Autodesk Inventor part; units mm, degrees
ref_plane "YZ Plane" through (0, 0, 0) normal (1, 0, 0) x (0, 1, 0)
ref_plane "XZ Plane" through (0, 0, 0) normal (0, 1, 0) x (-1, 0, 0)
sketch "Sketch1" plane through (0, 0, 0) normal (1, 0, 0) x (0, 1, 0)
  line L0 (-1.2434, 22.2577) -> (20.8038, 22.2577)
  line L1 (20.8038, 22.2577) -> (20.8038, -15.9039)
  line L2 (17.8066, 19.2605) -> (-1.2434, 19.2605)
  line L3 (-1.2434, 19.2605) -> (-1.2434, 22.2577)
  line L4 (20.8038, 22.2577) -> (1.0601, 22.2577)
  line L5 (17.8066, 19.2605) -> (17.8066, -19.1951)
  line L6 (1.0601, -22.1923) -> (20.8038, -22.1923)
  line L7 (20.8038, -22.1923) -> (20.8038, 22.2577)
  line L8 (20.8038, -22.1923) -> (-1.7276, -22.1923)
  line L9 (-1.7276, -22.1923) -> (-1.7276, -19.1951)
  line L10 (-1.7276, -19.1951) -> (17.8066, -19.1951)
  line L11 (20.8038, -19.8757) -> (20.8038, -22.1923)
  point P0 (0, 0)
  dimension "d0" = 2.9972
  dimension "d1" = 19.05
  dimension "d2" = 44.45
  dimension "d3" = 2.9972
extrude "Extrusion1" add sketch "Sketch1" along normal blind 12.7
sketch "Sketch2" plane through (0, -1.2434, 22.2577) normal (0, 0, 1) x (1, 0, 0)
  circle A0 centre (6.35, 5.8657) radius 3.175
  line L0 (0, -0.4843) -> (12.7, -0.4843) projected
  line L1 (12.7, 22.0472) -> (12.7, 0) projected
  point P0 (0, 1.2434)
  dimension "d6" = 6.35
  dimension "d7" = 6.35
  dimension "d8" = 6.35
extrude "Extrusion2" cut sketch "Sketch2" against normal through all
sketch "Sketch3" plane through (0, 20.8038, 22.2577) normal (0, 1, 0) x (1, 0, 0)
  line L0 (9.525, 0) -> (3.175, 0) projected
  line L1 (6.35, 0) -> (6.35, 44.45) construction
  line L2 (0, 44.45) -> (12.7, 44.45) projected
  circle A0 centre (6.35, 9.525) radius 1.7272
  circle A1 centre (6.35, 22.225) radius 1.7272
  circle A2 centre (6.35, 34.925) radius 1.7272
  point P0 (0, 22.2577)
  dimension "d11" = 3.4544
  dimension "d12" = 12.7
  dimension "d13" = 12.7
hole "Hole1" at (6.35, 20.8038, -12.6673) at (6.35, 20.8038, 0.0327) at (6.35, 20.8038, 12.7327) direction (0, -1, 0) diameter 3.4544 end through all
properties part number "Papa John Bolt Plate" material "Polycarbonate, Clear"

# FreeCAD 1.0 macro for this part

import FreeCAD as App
import Part
import Sketcher
Q = App.Units.Quantity

doc = App.newDocument("Part")
body = doc.addObject("PartDesign::Body", "Body")

sketch1 = doc.addObject("Sketcher::SketchObject", "Sketch")
body.addObject(sketch1)
sketch1.AttachmentSupport = (doc.YZ_Plane, [""])
sketch1.MapMode = "FlatFace"
sketch1.addGeometry([
    Part.LineSegment(App.Vector(20.8038, 22.2577, 0), App.Vector(-1.2434, 22.2577, 0)),
    Part.LineSegment(App.Vector(-1.2434, 22.2577, 0), App.Vector(-1.2434, 19.2605, 0)),
    Part.LineSegment(App.Vector(-1.2434, 19.2605, 0), App.Vector(17.8066, 19.2605, 0)),
    Part.LineSegment(App.Vector(17.8066, 19.2605, 0), App.Vector(17.8066, -19.1951, 0)),
    Part.LineSegment(App.Vector(17.8066, -19.1951, 0), App.Vector(-1.7276, -19.1951, 0)),
    Part.LineSegment(App.Vector(-1.7276, -19.1951, 0), App.Vector(-1.7276, -22.1923, 0)),
    Part.LineSegment(App.Vector(-1.7276, -22.1923, 0), App.Vector(20.8038, -22.1923, 0)),
    Part.LineSegment(App.Vector(20.8038, -22.1923, 0), App.Vector(20.8038, 22.2577, 0)),
], False)
sketch1.addConstraint([
    Sketcher.Constraint("Coincident", 0, 2, 1, 1),
    Sketcher.Constraint("Coincident", 1, 2, 2, 1),
    Sketcher.Constraint("Coincident", 2, 2, 3, 1),
    Sketcher.Constraint("Coincident", 3, 2, 4, 1),
    Sketcher.Constraint("Coincident", 4, 2, 5, 1),
    Sketcher.Constraint("Coincident", 5, 2, 6, 1),
    Sketcher.Constraint("Coincident", 6, 2, 7, 1),
    Sketcher.Constraint("Coincident", 7, 2, 0, 1),
    Sketcher.Constraint("Horizontal", 0),
    Sketcher.Constraint("Vertical", 1),
    Sketcher.Constraint("Horizontal", 2),
    Sketcher.Constraint("Vertical", 3),
    Sketcher.Constraint("Horizontal", 4),
    Sketcher.Constraint("Vertical", 5),
    Sketcher.Constraint("Horizontal", 6),
    Sketcher.Constraint("Vertical", 7),
    Sketcher.Constraint("Equal", 1, 5),
    Sketcher.Constraint("DistanceX", 2, 1, 2, 2, Q("0.75 in")),
    Sketcher.Constraint("DistanceY", 7, 1, 7, 2, Q("1.75 in")),
    Sketcher.Constraint("DistanceY", 1, 2, 1, 1, Q("0.118 in")),
    Sketcher.Constraint("DistanceX", 3, 2, 6, 2, Q("0.118 in")),
    Sketcher.Constraint("DistanceX", 4, 2, 4, 1, Q("19.5342 mm")),
    Sketcher.Constraint("DistanceX", 0, 2, -1, 1, Q("1.2434 mm")),
    Sketcher.Constraint("DistanceY", -1, 1, 0, 2, Q("22.2577 mm")),
])
pad1 = doc.addObject("PartDesign::Pad", "Pad")
body.addObject(pad1)
pad1.Profile = sketch1
pad1.Length = Q("0.5 in")

sketch2 = doc.addObject("Sketcher::SketchObject", "Sketch001")
body.addObject(sketch2)
sketch2.AttachmentSupport = (doc.XY_Plane, [""])
sketch2.MapMode = "FlatFace"
sketch2.AttachmentOffset = App.Placement(App.Vector(0, 0, 22.2577), App.Rotation())
sketch2.addGeometry(Part.Circle(App.Vector(6.35, 4.6223, 0), App.Vector(0, 0, 1), 3.175), False)
sketch2.addConstraint([
    Sketcher.Constraint("Diameter", 0, Q("0.25 in")),
    Sketcher.Constraint("DistanceX", -1, 1, 0, 3, Q("0.25 in")),
    Sketcher.Constraint("DistanceY", -1, 1, 0, 3, Q("4.6223 mm")),
])
pocket1 = doc.addObject("PartDesign::Pocket", "Pocket")
body.addObject(pocket1)
pocket1.Profile = sketch2
pocket1.Type = "ThroughAll"

sketch3 = doc.addObject("Sketcher::SketchObject", "Sketch002")
body.addObject(sketch3)
sketch3.AttachmentSupport = (doc.XZ_Plane, [""])
sketch3.MapMode = "FlatFace"
sketch3.AttachmentOffset = App.Placement(App.Vector(0, 0, -20.8038), App.Rotation())
sketch3.addGeometry([
    Part.Circle(App.Vector(6.35, -12.6673, 0), App.Vector(0, 0, 1), 1.7272),
    Part.Circle(App.Vector(6.35, 0.0327, 0), App.Vector(0, 0, 1), 1.7272),
    Part.Circle(App.Vector(6.35, 12.7327, 0), App.Vector(0, 0, 1), 1.7272),
], False)
sketch3.addConstraint([
    Sketcher.Constraint("Equal", 0, 1),
    Sketcher.Constraint("Equal", 1, 2),
    Sketcher.Constraint("Vertical", 0, 3, 1, 3),
    Sketcher.Constraint("Vertical", 1, 3, 2, 3),
    Sketcher.Constraint("Diameter", 0, Q("0.136 in")),
    Sketcher.Constraint("DistanceY", 0, 3, 2, 3, Q("1 in")),
    Sketcher.Constraint("DistanceY", 0, 3, 1, 3, Q("0.5 in")),
    Sketcher.Constraint("DistanceX", -1, 1, 0, 3, Q("0.25 in")),
    Sketcher.Constraint("DistanceY", 0, 3, -1, 1, Q("12.6673 mm")),
])
doc.recompute()
hole = doc.addObject("PartDesign::Hole", "Hole")
body.addObject(hole)
hole.Profile = sketch3
hole.ThreadType = "None"
hole.Diameter = Q("0.136 in")
hole.DepthType = "ThroughAll"
hole.Reversed = True

doc.recompute()
